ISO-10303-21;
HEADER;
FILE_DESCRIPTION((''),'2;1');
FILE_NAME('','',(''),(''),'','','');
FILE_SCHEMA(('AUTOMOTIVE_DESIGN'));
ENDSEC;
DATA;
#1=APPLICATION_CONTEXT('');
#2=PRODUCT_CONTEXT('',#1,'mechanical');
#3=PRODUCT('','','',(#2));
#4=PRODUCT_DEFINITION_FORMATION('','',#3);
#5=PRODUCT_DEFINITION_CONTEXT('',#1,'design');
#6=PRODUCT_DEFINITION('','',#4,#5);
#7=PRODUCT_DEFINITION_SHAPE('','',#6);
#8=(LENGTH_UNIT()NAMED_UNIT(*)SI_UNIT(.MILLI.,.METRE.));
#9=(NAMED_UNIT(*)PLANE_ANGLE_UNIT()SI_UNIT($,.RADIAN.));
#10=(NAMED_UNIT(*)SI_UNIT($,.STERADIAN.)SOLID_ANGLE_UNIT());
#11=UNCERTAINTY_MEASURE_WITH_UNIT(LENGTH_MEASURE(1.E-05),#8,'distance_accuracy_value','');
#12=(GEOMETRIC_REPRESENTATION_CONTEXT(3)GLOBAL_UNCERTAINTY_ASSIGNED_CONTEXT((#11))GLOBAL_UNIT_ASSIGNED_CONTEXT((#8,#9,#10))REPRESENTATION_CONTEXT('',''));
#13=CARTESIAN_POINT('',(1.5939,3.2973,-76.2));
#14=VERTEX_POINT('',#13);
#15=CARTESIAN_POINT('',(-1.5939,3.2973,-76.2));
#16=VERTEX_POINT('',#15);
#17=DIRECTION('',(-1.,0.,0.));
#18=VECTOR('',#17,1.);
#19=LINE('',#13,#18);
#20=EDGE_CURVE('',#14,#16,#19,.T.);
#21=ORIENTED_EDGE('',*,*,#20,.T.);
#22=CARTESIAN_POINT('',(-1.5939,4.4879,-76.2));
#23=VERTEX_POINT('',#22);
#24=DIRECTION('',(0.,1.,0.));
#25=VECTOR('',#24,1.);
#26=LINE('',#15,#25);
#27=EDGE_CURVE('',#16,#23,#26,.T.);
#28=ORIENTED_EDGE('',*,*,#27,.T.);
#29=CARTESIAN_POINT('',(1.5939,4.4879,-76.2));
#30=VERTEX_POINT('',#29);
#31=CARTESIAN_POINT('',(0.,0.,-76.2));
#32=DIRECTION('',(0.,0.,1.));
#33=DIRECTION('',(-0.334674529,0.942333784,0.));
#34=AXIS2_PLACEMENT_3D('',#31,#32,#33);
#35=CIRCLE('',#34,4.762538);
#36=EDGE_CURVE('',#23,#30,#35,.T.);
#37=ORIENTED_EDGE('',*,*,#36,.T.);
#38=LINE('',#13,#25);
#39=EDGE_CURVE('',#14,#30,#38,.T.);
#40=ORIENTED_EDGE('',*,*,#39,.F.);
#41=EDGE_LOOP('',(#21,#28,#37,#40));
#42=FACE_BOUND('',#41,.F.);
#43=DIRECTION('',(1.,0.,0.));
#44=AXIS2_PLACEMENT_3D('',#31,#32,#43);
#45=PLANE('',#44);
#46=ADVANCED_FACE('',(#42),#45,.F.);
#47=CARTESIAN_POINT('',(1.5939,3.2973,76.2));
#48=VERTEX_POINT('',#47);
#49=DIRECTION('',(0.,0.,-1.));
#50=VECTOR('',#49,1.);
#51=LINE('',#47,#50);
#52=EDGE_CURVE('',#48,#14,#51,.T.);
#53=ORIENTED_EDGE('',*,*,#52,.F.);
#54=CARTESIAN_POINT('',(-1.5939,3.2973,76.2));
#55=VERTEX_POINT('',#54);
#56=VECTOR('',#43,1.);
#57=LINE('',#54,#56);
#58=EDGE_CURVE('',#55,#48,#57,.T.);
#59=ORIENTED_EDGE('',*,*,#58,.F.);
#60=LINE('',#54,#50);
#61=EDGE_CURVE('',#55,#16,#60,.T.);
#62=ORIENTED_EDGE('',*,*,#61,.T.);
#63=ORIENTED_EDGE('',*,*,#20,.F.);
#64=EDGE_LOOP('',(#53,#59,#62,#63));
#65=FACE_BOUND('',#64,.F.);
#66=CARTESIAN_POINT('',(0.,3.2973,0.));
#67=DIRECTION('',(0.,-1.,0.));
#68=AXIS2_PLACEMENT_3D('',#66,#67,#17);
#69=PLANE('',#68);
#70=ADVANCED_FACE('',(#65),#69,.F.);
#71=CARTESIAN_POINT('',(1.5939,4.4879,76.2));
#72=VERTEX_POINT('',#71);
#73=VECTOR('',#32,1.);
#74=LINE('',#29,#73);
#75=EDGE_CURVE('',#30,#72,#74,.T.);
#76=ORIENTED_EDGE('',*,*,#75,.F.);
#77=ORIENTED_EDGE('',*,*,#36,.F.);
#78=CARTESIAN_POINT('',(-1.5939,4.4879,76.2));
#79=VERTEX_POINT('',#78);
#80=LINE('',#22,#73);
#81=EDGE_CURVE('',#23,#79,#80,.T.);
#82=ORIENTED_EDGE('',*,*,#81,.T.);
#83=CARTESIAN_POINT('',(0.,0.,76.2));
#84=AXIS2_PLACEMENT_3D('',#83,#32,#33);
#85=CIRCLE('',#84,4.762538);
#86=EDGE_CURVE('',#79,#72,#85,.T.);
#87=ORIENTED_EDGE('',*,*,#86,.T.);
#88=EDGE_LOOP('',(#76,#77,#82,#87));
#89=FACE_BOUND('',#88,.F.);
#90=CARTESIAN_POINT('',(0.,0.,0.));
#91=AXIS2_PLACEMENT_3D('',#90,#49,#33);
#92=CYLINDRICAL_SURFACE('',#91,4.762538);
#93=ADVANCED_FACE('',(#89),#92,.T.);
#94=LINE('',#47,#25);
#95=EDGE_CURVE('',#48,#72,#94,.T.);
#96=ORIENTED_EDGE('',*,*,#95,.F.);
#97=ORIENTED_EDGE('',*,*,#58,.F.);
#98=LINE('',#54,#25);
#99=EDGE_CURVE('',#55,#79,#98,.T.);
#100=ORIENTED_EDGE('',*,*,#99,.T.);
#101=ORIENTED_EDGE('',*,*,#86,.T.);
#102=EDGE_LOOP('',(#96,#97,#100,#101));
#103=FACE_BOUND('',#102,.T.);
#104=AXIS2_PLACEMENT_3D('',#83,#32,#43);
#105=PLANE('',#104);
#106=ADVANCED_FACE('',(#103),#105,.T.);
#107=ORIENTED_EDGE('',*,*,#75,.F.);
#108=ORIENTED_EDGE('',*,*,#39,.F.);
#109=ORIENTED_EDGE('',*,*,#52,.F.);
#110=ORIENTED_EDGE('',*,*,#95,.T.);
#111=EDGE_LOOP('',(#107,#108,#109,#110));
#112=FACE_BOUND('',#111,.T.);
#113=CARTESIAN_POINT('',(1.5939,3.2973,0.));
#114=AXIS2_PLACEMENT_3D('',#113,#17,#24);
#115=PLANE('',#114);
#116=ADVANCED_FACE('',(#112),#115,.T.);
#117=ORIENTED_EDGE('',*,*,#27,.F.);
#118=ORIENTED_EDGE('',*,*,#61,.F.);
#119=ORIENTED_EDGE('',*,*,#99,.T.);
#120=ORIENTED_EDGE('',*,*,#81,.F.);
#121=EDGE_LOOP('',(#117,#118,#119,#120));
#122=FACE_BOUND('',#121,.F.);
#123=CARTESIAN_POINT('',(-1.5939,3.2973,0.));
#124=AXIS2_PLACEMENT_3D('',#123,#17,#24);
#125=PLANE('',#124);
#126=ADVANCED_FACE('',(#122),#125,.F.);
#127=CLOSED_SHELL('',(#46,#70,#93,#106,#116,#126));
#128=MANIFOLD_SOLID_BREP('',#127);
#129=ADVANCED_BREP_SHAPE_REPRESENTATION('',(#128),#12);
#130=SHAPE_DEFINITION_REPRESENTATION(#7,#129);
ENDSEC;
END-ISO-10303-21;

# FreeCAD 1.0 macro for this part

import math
import FreeCAD as App
import Part
import Sketcher
Q = App.Units.Quantity

doc = App.newDocument("Part")
body = doc.addObject("PartDesign::Body", "Body")

# Sketch on XY plane
sketch1 = body.newObject("Sketcher::SketchObject", "Sketch")
sketch1.AttachmentSupport = (doc.getObject("XY_Plane"), [""])
sketch1.MapMode = "FlatFace"
sketch1.addGeometry([
    Part.LineSegment(App.Vector(-1.5939, 3.2973, 0), App.Vector(-1.5939, 4.4879, 0)),
    Part.ArcOfCircle(Part.Circle(App.Vector(0, 0, 0), App.Vector(0, 0, 1), 4.762538), math.radians(109.552747), math.radians(430.447253)),
    Part.LineSegment(App.Vector(1.5939, 4.4879, 0), App.Vector(1.5939, 3.2973, 0)),
    Part.LineSegment(App.Vector(1.5939, 3.2973, 0), App.Vector(-1.5939, 3.2973, 0)),
], False)
sketch1.addConstraint([
    Sketcher.Constraint("Coincident", 0, 2, 1, 1),
    Sketcher.Constraint("Coincident", 1, 2, 2, 1),
    Sketcher.Constraint("Coincident", 2, 2, 3, 1),
    Sketcher.Constraint("Coincident", 3, 2, 0, 1),
    Sketcher.Constraint("Vertical", 0),
    Sketcher.Constraint("Vertical", 2),
    Sketcher.Constraint("Horizontal", 3),
    Sketcher.Constraint("Coincident", 1, 3, -1, 1),
    Sketcher.Constraint("Horizontal", 0, 2, 1, 2),
    Sketcher.Constraint("Radius", 1, Q("0.1875 in")),
    Sketcher.Constraint("DistanceY", 0, 1, 0, 2, Q("0.046874 in")),
    Sketcher.Constraint("DistanceX", 0, 2, -1, 1, Q("1.594 mm")),
])
pad1 = body.newObject("PartDesign::Pad", "Pad")
pad1.Profile = sketch1
pad1.Length = Q("6 in")
pad1.Midplane = True

doc.recompute()
